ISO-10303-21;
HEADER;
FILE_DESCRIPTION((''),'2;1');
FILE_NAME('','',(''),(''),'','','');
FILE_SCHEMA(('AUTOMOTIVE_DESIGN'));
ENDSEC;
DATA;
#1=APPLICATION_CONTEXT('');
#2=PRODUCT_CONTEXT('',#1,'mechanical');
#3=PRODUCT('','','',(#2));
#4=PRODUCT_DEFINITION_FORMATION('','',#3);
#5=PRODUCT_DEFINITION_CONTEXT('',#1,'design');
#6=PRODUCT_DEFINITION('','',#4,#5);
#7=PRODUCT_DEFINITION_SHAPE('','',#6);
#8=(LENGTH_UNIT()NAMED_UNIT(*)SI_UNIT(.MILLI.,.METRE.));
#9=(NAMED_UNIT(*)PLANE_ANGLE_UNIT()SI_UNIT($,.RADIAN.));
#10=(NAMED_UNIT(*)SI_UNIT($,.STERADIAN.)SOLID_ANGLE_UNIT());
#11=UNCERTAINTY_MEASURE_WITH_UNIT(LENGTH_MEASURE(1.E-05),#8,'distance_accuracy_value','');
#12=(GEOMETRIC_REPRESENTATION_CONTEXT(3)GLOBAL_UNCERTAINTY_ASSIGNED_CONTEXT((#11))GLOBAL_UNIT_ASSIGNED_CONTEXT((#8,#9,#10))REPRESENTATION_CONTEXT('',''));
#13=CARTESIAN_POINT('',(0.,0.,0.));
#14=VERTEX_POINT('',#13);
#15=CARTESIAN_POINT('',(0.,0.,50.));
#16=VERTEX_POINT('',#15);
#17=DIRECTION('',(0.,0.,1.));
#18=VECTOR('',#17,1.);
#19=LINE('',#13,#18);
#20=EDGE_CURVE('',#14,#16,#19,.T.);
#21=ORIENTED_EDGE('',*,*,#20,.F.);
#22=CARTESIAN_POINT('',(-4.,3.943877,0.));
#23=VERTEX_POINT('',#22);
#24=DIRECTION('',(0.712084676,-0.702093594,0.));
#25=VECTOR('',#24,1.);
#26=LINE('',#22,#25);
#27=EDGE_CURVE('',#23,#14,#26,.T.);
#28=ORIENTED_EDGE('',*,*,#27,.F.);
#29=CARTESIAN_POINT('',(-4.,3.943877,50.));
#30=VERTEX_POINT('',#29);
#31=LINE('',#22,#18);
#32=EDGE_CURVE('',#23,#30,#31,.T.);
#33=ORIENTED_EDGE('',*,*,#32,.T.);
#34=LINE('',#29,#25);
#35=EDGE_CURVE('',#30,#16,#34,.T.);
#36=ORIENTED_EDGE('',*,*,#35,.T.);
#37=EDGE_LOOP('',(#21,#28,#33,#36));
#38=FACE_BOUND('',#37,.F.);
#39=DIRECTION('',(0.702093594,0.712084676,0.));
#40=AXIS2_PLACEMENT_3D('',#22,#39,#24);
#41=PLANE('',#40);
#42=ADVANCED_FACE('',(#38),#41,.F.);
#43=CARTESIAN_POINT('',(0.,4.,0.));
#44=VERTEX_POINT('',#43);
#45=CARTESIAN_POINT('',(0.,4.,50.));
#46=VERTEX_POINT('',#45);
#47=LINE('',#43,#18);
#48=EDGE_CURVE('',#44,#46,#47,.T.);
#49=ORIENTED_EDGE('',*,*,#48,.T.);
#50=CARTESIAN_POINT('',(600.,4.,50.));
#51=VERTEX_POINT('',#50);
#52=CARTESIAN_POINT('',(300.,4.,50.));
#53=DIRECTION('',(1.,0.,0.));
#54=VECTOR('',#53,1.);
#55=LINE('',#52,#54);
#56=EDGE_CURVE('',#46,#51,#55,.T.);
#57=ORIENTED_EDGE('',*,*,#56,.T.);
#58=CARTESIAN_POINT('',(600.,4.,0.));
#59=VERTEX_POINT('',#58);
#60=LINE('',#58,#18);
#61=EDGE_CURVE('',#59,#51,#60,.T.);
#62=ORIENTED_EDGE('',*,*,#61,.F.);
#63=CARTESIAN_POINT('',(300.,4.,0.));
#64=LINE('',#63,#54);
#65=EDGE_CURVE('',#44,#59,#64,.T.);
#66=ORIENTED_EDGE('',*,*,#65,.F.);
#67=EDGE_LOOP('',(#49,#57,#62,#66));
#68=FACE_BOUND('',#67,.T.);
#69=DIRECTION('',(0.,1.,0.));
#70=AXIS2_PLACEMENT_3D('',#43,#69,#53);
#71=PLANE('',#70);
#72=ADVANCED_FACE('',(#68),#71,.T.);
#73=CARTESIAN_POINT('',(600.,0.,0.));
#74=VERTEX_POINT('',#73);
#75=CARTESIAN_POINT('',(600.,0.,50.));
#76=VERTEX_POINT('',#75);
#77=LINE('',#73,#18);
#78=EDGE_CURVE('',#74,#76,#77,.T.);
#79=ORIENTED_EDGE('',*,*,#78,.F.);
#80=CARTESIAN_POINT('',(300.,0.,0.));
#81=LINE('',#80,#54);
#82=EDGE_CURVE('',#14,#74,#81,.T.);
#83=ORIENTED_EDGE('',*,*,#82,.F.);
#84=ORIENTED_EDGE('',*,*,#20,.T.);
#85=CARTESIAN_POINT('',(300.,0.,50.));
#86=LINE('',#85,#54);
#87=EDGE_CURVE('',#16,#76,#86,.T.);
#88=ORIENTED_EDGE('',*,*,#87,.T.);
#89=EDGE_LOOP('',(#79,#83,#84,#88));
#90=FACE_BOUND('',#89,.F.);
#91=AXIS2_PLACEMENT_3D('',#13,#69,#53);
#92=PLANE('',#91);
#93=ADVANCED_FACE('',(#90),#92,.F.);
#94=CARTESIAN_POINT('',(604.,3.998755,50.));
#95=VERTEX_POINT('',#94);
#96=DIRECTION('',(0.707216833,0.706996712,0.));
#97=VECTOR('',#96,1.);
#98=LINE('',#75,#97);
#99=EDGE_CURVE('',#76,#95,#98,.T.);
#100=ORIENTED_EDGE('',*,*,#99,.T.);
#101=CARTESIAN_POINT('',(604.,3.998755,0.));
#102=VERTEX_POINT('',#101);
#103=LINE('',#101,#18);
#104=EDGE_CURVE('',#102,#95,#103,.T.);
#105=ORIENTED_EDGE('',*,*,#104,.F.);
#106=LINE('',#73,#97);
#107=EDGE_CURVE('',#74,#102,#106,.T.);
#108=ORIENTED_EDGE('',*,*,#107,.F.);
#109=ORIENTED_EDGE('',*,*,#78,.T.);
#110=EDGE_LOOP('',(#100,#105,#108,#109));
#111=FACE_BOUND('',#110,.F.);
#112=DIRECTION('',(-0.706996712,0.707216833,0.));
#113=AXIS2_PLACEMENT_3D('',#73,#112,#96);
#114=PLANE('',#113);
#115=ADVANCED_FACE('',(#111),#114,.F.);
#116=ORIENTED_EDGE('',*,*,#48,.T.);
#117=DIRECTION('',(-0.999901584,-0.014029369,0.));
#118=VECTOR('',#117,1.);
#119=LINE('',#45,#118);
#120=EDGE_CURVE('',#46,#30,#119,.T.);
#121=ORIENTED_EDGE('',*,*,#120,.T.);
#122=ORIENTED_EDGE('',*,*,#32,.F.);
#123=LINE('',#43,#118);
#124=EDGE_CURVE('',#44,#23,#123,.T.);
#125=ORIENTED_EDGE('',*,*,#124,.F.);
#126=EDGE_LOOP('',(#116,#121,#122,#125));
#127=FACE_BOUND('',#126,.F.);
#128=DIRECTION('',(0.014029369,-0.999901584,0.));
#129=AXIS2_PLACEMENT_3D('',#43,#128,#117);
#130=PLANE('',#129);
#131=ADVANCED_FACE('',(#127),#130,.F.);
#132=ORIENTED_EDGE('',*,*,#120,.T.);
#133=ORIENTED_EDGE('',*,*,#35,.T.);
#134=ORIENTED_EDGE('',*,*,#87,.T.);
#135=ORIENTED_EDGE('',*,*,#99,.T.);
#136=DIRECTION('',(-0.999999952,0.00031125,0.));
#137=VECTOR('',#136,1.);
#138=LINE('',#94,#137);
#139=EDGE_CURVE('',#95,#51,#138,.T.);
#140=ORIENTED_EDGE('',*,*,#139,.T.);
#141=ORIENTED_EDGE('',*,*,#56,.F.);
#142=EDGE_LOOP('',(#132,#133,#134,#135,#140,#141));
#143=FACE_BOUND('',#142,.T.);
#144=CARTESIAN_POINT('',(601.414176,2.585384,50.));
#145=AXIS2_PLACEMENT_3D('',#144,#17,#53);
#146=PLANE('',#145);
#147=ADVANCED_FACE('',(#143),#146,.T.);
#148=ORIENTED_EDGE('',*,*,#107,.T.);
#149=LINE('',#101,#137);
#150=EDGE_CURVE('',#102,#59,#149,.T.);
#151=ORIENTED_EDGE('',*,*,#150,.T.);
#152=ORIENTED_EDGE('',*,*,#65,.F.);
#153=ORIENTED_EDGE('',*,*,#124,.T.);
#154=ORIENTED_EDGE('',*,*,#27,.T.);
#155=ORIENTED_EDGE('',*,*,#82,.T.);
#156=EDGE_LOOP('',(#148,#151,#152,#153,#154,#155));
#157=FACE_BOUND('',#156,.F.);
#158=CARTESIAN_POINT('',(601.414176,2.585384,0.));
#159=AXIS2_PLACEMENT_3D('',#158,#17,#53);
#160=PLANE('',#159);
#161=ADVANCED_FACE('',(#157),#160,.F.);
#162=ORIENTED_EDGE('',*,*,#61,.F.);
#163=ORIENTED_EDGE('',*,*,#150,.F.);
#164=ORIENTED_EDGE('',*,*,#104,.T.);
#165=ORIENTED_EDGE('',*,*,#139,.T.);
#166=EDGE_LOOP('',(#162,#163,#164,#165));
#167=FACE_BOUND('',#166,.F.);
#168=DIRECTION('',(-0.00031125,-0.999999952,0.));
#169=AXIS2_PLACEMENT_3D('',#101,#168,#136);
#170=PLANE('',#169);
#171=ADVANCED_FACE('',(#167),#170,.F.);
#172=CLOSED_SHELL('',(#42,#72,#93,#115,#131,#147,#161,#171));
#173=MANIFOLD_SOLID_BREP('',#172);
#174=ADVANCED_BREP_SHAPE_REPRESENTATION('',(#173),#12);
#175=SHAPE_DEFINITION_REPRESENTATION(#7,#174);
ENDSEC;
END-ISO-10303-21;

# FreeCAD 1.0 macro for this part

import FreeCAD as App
import Part
import Sketcher


def add_polygon(sketch, points):
    """Adds a closed chain of lines whose ends are joined by coincident constraints."""
    first, n = sketch.GeometryCount, len(points)
    for a, b in zip(points, points[1:] + points[:1]):
        sketch.addGeometry(Part.LineSegment(App.Vector(*a, 0), App.Vector(*b, 0)), False)
    for i in range(n):
        sketch.addConstraint(Sketcher.Constraint("Coincident", first + i, 2, first + (i + 1) % n, 1))

doc = App.newDocument("Part")
params = doc.addObject("Spreadsheet::Sheet", "Params")
for row, (alias, value) in enumerate([
    ("sketch1_width", "600 mm"),
    ("sketch1_length", "4 mm"),
    ("pad1_length", "50 mm"),
], start=1):
    params.set(f"A{row}", alias)
    params.set(f"B{row}", "=" + value)
    params.setAlias(f"B{row}", alias)

body = doc.addObject("PartDesign::Body", "Body")

# Sketch on XY plane
sketch1 = body.newObject("Sketcher::SketchObject", "Sketch")
sketch1.AttachmentSupport = (doc.getObject("XY_Plane"), [""])
sketch1.MapMode = "FlatFace"
add_polygon(sketch1, [(600, 0), (604, 4), (600, 4), (0, 4), (-4, 3.9), (0, 0)])  # lines 0-5
sketch1.addConstraint(Sketcher.Constraint("Horizontal", 2))
sketch1.addConstraint(Sketcher.Constraint("Horizontal", 5))
sketch1.addConstraint(Sketcher.Constraint("Coincident", 4, 2, -1, 1))
sketch1.addConstraint(Sketcher.Constraint("PointOnObject", 2, 2, -2))
sketch1.addConstraint(Sketcher.Constraint("Vertical", 1, 2, 5, 2))
sketch1.addConstraint(Sketcher.Constraint("DistanceX", 2, 2, 2, 1, 600.0))
sketch1.addConstraint(Sketcher.Constraint("Distance", 1, 4.0))
sketch1.addConstraint(Sketcher.Constraint("DistanceY", -1, 1, 1, 2, 4.0))
sketch1.addConstraint(Sketcher.Constraint("DistanceX", 3, 2, -1, 1, 4.0))
sketch1.addConstraint(Sketcher.Constraint("Distance", 4, 5.617309))
sketch1.addConstraint(Sketcher.Constraint("Distance", 0, 5.655974))
sketch1.setExpression("Constraints[11]", "Params.sketch1_width")
sketch1.setExpression("Constraints[12]", "Params.sketch1_length")
pad1 = body.newObject("PartDesign::Pad", "Pad")
pad1.Profile = sketch1
pad1.setExpression("Length", "Params.pad1_length")

doc.recompute()
